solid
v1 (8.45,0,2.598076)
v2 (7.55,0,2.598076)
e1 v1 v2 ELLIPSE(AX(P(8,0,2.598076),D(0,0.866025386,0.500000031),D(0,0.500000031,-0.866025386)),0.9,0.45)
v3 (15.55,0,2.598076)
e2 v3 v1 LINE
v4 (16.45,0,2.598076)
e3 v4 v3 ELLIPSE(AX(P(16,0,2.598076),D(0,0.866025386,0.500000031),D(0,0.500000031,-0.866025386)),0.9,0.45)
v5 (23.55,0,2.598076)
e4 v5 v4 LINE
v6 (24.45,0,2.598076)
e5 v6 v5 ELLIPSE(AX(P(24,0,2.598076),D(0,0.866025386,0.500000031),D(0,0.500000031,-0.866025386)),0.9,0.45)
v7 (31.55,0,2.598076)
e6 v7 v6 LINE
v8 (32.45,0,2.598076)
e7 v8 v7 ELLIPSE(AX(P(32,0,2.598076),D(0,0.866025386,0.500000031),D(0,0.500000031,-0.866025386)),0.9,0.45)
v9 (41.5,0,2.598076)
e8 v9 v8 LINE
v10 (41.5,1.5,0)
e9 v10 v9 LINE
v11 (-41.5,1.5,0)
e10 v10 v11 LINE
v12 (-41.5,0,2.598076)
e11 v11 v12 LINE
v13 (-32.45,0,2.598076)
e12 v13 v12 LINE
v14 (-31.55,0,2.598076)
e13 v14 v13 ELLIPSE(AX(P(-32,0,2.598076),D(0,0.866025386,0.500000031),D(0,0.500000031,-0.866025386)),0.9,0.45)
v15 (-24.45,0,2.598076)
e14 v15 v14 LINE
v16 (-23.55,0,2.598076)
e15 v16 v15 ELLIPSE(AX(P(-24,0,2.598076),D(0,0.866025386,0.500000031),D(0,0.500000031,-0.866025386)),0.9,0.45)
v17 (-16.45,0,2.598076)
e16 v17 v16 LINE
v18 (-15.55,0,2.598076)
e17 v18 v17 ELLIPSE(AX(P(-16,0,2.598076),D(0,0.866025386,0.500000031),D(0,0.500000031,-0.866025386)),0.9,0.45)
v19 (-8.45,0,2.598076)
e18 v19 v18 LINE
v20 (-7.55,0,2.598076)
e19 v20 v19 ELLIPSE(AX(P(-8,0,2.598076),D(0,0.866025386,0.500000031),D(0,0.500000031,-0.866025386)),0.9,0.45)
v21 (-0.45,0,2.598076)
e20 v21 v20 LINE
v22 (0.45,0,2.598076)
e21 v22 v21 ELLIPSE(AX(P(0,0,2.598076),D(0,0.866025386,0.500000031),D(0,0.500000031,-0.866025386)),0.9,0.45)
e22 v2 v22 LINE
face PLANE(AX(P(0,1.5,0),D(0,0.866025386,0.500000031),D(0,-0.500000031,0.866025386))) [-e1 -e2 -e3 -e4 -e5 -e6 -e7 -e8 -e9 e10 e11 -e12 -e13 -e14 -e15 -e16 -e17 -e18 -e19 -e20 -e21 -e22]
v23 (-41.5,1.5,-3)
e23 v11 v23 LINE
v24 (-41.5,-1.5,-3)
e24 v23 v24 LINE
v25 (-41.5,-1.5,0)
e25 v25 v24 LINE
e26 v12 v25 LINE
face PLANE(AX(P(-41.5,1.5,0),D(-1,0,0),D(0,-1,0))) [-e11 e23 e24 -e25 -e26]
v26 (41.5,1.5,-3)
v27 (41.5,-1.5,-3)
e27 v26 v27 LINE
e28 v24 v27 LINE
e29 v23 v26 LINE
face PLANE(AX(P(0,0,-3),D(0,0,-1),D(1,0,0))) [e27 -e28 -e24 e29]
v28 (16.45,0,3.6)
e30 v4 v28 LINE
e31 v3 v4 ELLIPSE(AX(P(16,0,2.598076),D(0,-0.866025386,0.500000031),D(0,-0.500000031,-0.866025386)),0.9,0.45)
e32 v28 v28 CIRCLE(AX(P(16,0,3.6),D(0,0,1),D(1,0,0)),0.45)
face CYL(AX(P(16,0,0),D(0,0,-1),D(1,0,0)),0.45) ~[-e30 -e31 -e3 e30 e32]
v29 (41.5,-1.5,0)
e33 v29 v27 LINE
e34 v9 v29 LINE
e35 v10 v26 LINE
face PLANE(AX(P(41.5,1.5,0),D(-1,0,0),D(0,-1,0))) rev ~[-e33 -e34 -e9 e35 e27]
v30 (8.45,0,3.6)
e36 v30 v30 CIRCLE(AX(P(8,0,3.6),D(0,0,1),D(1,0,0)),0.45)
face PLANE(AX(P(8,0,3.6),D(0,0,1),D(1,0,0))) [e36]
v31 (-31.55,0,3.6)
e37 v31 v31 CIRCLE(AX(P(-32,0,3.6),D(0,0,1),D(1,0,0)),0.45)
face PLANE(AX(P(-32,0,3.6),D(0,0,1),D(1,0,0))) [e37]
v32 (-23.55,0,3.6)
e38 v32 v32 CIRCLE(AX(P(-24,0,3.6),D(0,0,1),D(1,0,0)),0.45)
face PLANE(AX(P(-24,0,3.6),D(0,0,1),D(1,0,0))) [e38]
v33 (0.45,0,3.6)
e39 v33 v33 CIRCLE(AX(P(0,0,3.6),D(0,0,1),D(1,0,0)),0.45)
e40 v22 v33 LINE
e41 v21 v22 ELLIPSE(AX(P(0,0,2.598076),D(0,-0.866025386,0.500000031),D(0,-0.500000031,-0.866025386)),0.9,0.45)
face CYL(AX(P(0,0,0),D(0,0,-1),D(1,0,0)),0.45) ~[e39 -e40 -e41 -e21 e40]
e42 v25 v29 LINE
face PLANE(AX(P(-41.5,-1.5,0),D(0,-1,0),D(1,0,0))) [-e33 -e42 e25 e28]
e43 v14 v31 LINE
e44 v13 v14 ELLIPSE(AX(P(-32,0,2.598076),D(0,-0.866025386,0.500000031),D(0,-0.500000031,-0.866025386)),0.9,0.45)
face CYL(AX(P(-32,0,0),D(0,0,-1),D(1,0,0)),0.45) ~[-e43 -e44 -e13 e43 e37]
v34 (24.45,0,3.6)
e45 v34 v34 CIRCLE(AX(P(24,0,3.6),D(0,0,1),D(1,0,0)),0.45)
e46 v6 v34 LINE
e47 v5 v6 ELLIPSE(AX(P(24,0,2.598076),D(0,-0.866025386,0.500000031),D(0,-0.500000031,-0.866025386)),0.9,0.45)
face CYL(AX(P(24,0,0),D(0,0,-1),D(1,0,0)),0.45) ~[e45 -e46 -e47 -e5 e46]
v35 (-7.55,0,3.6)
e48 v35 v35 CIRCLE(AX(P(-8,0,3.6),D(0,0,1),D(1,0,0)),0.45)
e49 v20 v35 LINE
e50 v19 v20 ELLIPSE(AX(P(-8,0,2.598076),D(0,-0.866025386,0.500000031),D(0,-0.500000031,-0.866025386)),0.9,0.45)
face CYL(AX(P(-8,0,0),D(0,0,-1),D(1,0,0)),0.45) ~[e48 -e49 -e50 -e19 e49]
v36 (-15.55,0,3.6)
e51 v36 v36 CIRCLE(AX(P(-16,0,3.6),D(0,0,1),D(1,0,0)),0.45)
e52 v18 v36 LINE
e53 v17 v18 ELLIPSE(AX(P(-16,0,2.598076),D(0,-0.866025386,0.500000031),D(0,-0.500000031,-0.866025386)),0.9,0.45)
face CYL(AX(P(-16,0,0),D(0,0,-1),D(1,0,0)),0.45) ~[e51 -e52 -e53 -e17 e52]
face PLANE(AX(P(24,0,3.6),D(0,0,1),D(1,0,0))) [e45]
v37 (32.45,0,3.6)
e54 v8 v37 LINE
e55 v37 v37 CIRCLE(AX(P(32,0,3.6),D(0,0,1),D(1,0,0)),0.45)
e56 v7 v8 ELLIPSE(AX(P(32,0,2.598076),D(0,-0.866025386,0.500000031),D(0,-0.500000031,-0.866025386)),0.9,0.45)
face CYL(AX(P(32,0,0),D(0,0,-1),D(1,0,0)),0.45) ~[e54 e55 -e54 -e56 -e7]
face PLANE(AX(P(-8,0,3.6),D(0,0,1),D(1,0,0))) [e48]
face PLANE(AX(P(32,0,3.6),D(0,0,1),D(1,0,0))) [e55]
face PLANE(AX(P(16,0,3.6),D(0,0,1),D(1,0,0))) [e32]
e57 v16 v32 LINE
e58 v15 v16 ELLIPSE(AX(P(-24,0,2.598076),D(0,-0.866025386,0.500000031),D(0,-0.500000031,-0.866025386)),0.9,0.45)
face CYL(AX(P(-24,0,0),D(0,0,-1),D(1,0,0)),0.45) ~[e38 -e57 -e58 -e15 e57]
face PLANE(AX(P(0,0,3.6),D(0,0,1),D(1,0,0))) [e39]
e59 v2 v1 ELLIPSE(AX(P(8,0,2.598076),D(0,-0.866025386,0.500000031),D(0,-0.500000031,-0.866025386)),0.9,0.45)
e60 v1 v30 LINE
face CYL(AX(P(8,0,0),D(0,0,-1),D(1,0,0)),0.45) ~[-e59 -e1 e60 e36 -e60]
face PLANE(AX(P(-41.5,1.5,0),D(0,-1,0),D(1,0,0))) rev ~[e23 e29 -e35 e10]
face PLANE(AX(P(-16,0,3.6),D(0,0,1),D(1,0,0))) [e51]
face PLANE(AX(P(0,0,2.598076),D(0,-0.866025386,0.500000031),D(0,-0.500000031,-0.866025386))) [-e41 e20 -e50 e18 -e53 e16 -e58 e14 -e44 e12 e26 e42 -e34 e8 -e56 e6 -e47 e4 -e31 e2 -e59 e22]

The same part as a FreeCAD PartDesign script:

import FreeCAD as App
import Part
import Sketcher
Q = App.Units.Quantity


def add_polygon(sketch, points):
    """Adds a closed chain of lines whose ends are joined by coincident constraints."""
    first, n = sketch.GeometryCount, len(points)
    for a, b in zip(points, points[1:] + points[:1]):
        sketch.addGeometry(Part.LineSegment(App.Vector(*a, 0), App.Vector(*b, 0)), False)
    for i in range(n):
        sketch.addConstraint(Sketcher.Constraint("Coincident", first + i, 2, first + (i + 1) % n, 1))

doc = App.newDocument("Part")
body = doc.addObject("PartDesign::Body", "Body")

sketch1 = body.newObject("Sketcher::SketchObject", "Sketch")
sketch1.AttachmentSupport = (doc.getObject("YZ_Plane"), [""])
sketch1.MapMode = "FlatFace"
add_polygon(sketch1, [(0, 2.6), (-1.5, 0), (1.5, 0)])
sketch1.addConstraint([
    Sketcher.Constraint("Horizontal", 1),
    Sketcher.Constraint("Symmetric", 0, 2, 1, 2, -1, 1),
    Sketcher.Constraint("PointOnObject", 2, 2, -2),
    Sketcher.Constraint("DistanceX", 1, 1, 1, 2, 3.0),
    Sketcher.Constraint("Angle", 0, Q("-120.000002 deg")),
])
pad1 = body.newObject("PartDesign::Pad", "Pad")
pad1.Profile = sketch1
pad1.Length = 83
pad1.Midplane = True

sketch2 = body.newObject("Sketcher::SketchObject", "Sketch001")
sketch2.AttachmentSupport = (doc.getObject("XY_Plane"), [""])
sketch2.MapMode = "FlatFace"
sketch2.addGeometry([
    Part.Circle(App.Vector(-32, 0, 0), App.Vector(0, 0, 1), 0.45),
    Part.Circle(App.Vector(-24, 0, 0), App.Vector(0, 0, 1), 0.45),
    Part.Circle(App.Vector(-16, 0, 0), App.Vector(0, 0, 1), 0.45),
    Part.Circle(App.Vector(-8, 0, 0), App.Vector(0, 0, 1), 0.45),
    Part.Circle(App.Vector(0, 0, 0), App.Vector(0, 0, 1), 0.45),
    Part.Circle(App.Vector(8, 0, 0), App.Vector(0, 0, 1), 0.45),
    Part.Circle(App.Vector(16, 0, 0), App.Vector(0, 0, 1), 0.45),
    Part.Circle(App.Vector(24, 0, 0), App.Vector(0, 0, 1), 0.45),
    Part.Circle(App.Vector(32, 0, 0), App.Vector(0, 0, 1), 0.45),
], False)
sketch2.addConstraint([
    Sketcher.Constraint("Coincident", 4, 3, -1, 1),
    Sketcher.Constraint("Equal", 0, 1),
    Sketcher.Constraint("Equal", 1, 2),
    Sketcher.Constraint("Equal", 2, 3),
    Sketcher.Constraint("Equal", 3, 4),
    Sketcher.Constraint("Equal", 4, 5),
    Sketcher.Constraint("Equal", 5, 6),
    Sketcher.Constraint("Equal", 6, 7),
    Sketcher.Constraint("Equal", 7, 8),
    Sketcher.Constraint("Symmetric", 3, 3, 5, 3, -1, 1),
    Sketcher.Constraint("Symmetric", 2, 3, 6, 3, -1, 1),
    Sketcher.Constraint("Symmetric", 1, 3, 7, 3, -1, 1),
    Sketcher.Constraint("Symmetric", 0, 3, 8, 3, -1, 1),
    Sketcher.Constraint("PointOnObject", 0, 3, -1),
    Sketcher.Constraint("PointOnObject", 1, 3, -1),
    Sketcher.Constraint("PointOnObject", 2, 3, -1),
    Sketcher.Constraint("PointOnObject", 3, 3, -1),
    Sketcher.Constraint("Diameter", 0, 0.9),
    Sketcher.Constraint("DistanceX", 0, 3, -1, 1, 32.0),
    Sketcher.Constraint("DistanceX", 1, 3, -1, 1, 24.0),
    Sketcher.Constraint("DistanceX", 2, 3, -1, 1, 16.0),
    Sketcher.Constraint("DistanceX", 3, 3, -1, 1, 8.0),
])
pad2 = body.newObject("PartDesign::Pad", "Pad001")
pad2.Profile = sketch2
pad2.Length = 3.6

sketch3 = body.newObject("Sketcher::SketchObject", "Sketch002")
sketch3.AttachmentSupport = (doc.getObject("XY_Plane"), [""])
sketch3.MapMode = "FlatFace"
add_polygon(sketch3, [(-41.5, -1.5), (-41.5, 1.5), (41.5, 1.5), (41.5, -1.5)])
sketch3.addConstraint([
    Sketcher.Constraint("Vertical", 0),
    Sketcher.Constraint("Horizontal", 1),
    Sketcher.Constraint("Vertical", 2),
    Sketcher.Constraint("Horizontal", 3),
    Sketcher.Constraint("Symmetric", 0, 2, 2, 2, -1, 1),
    Sketcher.Constraint("DistanceX", 1, 1, 1, 2, 83.0),
    Sketcher.Constraint("DistanceY", 0, 1, 0, 2, 3.0),
])
pad3 = body.newObject("PartDesign::Pad", "Pad002")
pad3.Profile = sketch3
pad3.Length = 3
pad3.Reversed = True

doc.recompute()
